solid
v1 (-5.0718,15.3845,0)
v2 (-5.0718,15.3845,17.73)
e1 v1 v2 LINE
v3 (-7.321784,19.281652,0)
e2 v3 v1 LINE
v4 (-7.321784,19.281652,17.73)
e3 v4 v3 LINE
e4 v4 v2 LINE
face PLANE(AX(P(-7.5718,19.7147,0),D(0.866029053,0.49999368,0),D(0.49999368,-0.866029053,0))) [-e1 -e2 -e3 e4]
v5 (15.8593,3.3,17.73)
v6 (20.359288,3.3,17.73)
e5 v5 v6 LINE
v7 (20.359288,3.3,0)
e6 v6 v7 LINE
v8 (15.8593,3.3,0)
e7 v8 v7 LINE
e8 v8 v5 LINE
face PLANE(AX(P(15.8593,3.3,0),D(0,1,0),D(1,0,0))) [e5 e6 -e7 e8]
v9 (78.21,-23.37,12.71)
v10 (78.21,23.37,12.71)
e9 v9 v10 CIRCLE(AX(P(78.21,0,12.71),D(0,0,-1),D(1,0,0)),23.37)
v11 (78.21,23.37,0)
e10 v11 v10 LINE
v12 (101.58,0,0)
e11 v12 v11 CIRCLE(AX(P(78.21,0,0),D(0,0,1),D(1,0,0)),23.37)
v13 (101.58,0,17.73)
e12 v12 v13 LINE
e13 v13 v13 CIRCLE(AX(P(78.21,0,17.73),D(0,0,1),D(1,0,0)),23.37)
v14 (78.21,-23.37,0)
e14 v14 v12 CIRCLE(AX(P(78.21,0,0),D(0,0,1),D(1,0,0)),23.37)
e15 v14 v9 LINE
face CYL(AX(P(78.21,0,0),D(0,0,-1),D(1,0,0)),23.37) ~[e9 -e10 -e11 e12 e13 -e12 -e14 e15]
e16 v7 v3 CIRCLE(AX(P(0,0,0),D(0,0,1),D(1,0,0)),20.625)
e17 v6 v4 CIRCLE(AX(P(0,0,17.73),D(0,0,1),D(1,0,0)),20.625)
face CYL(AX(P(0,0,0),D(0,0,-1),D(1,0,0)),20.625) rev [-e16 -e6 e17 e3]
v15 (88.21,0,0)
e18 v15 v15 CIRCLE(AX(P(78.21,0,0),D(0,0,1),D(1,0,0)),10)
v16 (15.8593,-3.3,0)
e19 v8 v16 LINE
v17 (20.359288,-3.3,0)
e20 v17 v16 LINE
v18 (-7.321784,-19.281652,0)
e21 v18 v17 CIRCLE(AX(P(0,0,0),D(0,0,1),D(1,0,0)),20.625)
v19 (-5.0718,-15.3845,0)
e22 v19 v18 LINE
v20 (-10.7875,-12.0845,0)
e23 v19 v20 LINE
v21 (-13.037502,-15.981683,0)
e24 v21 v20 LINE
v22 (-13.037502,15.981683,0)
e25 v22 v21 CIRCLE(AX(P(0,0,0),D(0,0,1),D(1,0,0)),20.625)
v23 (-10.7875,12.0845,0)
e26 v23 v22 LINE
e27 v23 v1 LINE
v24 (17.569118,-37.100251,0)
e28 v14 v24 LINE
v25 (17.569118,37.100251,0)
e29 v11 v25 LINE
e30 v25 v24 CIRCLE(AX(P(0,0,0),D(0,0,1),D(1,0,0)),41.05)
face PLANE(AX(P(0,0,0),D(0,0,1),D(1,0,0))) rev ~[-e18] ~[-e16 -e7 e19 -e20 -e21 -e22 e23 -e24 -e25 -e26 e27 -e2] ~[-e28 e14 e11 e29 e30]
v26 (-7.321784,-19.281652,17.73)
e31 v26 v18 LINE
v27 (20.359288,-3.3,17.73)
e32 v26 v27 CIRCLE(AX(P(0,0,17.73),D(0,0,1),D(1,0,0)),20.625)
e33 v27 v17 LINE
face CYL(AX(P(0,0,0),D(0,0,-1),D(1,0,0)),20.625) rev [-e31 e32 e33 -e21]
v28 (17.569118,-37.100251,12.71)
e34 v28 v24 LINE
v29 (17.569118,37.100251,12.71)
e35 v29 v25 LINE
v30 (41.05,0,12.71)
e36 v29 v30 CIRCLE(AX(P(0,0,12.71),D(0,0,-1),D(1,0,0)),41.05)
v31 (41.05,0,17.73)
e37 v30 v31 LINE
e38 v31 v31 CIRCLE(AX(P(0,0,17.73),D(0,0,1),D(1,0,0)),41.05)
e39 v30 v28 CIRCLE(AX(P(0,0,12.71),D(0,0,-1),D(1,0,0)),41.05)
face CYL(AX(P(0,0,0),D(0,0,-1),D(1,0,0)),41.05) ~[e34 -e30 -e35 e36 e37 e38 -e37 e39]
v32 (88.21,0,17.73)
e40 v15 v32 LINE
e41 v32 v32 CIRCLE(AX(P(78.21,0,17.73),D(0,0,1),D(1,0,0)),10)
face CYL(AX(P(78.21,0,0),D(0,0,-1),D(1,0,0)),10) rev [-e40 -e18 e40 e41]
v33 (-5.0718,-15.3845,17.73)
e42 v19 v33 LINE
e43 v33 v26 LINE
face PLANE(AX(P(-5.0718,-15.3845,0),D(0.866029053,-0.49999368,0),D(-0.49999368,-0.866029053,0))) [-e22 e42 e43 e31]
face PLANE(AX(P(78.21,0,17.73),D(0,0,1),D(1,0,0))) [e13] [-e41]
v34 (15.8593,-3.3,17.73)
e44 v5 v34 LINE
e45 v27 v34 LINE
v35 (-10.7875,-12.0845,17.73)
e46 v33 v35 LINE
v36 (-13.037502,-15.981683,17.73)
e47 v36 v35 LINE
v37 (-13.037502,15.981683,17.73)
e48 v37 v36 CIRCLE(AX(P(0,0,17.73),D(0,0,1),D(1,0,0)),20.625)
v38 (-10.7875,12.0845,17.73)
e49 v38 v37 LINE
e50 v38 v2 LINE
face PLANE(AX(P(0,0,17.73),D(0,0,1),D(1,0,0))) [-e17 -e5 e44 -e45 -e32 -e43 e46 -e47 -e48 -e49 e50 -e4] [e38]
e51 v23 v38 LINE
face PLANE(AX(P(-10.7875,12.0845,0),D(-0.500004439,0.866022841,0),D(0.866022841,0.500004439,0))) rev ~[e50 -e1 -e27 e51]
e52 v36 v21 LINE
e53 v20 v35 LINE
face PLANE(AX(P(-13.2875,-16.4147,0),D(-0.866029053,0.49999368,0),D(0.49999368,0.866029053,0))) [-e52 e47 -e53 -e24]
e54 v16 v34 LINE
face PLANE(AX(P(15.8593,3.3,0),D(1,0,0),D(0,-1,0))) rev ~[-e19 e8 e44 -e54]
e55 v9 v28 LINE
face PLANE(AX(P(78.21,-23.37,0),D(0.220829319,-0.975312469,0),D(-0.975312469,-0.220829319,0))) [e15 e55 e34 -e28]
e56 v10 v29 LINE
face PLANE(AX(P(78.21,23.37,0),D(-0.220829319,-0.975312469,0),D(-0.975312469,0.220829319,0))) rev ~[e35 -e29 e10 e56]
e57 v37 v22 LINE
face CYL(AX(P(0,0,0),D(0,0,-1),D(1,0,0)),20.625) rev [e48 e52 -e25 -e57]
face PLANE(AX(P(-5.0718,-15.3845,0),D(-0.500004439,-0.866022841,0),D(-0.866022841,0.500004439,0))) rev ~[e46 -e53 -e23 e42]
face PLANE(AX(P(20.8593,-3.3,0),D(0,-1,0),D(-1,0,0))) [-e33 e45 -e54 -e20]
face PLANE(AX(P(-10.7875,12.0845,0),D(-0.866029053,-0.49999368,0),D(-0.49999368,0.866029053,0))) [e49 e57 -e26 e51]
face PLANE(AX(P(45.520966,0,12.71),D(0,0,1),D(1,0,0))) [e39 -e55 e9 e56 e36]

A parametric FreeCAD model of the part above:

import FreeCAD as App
import Part
import Sketcher

V = App.Vector
Q = App.Units.Quantity

doc = App.newDocument("Part")
body = doc.addObject("PartDesign::Body", "Body")
body.AllowCompound = True

sketch1 = doc.addObject("Sketcher::SketchObject", "Sketch")
body.addObject(sketch1)
sketch1.AttachmentSupport = (doc.XY_Plane, [""])
sketch1.MapMode = "FlatFace"
sketch1.addGeometry([
    Part.Circle(V(0, 0, 0), V(0, 0, 1), 41),
    Part.Circle(V(0, 0, 0), V(0, 0, 1), 21),
    Part.Circle(V(78, 0, 0), V(0, 0, 1), 23),
    Part.Circle(V(78, 0, 0), V(0, 0, 1), 10),
], False)
sketch1.addConstraint([
    Sketcher.Constraint("Coincident", 0, 3, -1, 1),
    Sketcher.Constraint("Coincident", 1, 3, -1, 1),
    Sketcher.Constraint("Coincident", 3, 3, 2, 3),
    Sketcher.Constraint("PointOnObject", 2, 3, -1),
    Sketcher.Constraint("Diameter", 3, 20.0),
    Sketcher.Constraint("Diameter", 0, 82.1),
    Sketcher.Constraint("Diameter", 1, 41.25),
    Sketcher.Constraint("Diameter", 2, 46.74),
    Sketcher.Constraint("DistanceX", -1, 1, 2, 3, 78.21),
])
pad1 = doc.addObject("PartDesign::Pad", "Pad")
body.addObject(pad1)
pad1.Profile = sketch1
pad1.Length = 17.73

sketch2 = doc.addObject("Sketcher::SketchObject", "Sketch001")
body.addObject(sketch2)
sketch2.AttachmentSupport = (doc.XY_Plane, [""])
sketch2.MapMode = "FlatFace"
sketch2.addGeometry([
    Part.LineSegment(V(78, 23, 0), V(18, 37, 0)),
    Part.LineSegment(V(18, 37, 0), V(30, 0, 0)),
    Part.LineSegment(V(30, 0, 0), V(18, -37, 0)),
    Part.LineSegment(V(18, -37, 0), V(78, -23, 0)),
    Part.LineSegment(V(78, -23, 0), V(57, 0, 0)),
    Part.LineSegment(V(57, 0, 0), V(78, 23, 0)),
], False)
sketch2.addConstraint([
    Sketcher.Constraint("Coincident", 0, 2, 1, 1),
    Sketcher.Constraint("Coincident", 1, 2, 2, 1),
    Sketcher.Constraint("Coincident", 2, 2, 3, 1),
    Sketcher.Constraint("Coincident", 3, 2, 4, 1),
    Sketcher.Constraint("Coincident", 4, 2, 5, 1),
    Sketcher.Constraint("Coincident", 5, 2, 0, 1),
    Sketcher.Constraint("Symmetric", 0, 2, 2, 2, -1),
    Sketcher.Constraint("Symmetric", 3, 2, 5, 2, -1),
    Sketcher.Constraint("PointOnObject", 1, 2, -1),
    Sketcher.Constraint("PointOnObject", 4, 2, -1),
    Sketcher.Constraint("DistanceX", -1, 1, 4, 2, 57.0),
    Sketcher.Constraint("Angle", 1, Q("-70.7888 deg")),
    Sketcher.Constraint("DistanceX", -1, 1, 3, 2, 78.21),
    Sketcher.Constraint("DistanceY", 3, 2, -1, 1, 23.37),
    Sketcher.Constraint("Distance", 0, 62.176),
    Sketcher.Constraint("DistanceX", -1, 1, 0, 2, 17.569),
])
pad2 = doc.addObject("PartDesign::Pad", "Pad001")
body.addObject(pad2)
pad2.Profile = sketch2
pad2.Length = 12.71

sketch3 = doc.addObject("Sketcher::SketchObject", "Sketch002")
body.addObject(sketch3)
sketch3.AttachmentSupport = (doc.XY_Plane, [""])
sketch3.MapMode = "FlatFace"
sketch3.addGeometry([
    Part.LineSegment(V(-13, 16, 0), V(-11, 12, 0)),
    Part.LineSegment(V(-11, 12, 0), V(-5, 15, 0)),
    Part.LineSegment(V(-5, 15, 0), V(-8, 20, 0)),
    Part.LineSegment(V(-8, 20, 0), V(-13, 16, 0)),
    Part.LineSegment(V(-8, -20, 0), V(-5, -15, 0)),
    Part.LineSegment(V(-5, -15, 0), V(-11, -12, 0)),
    Part.LineSegment(V(-11, -12, 0), V(-13, -16, 0)),
    Part.LineSegment(V(-13, -16, 0), V(-8, -20, 0)),
    Part.LineSegment(V(16, -3, 0), V(21, -3, 0)),
    Part.LineSegment(V(21, -3, 0), V(21, 3, 0)),
    Part.LineSegment(V(21, 3, 0), V(16, 3, 0)),
    Part.LineSegment(V(16, 3, 0), V(16, -3, 0)),
], False)
sketch3.addConstraint([
    Sketcher.Constraint("Coincident", 0, 2, 1, 1),
    Sketcher.Constraint("Coincident", 1, 2, 2, 1),
    Sketcher.Constraint("Coincident", 2, 2, 3, 1),
    Sketcher.Constraint("Coincident", 3, 2, 0, 1),
    Sketcher.Constraint("Coincident", 4, 2, 5, 1),
    Sketcher.Constraint("Coincident", 5, 2, 6, 1),
    Sketcher.Constraint("Coincident", 6, 2, 7, 1),
    Sketcher.Constraint("Coincident", 7, 2, 4, 1),
    Sketcher.Constraint("Coincident", 8, 2, 9, 1),
    Sketcher.Constraint("Coincident", 9, 2, 10, 1),
    Sketcher.Constraint("Coincident", 10, 2, 11, 1),
    Sketcher.Constraint("Coincident", 11, 2, 8, 1),
    Sketcher.Constraint("Horizontal", 8),
    Sketcher.Constraint("Vertical", 9),
    Sketcher.Constraint("Horizontal", 10),
    Sketcher.Constraint("Vertical", 11),
    Sketcher.Constraint("Symmetric", 1, 2, 4, 2, -1),
    Sketcher.Constraint("Symmetric", 0, 2, 5, 2, -1),
    Sketcher.Constraint("Symmetric", 3, 2, 6, 2, -1),
    Sketcher.Constraint("Symmetric", 2, 2, 7, 2, -1),
    Sketcher.Constraint("Perpendicular", 0, 1),
    Sketcher.Constraint("Perpendicular", 1, 2),
    Sketcher.Constraint("Perpendicular", 2, 3),
    Sketcher.Constraint("DistanceX", 8, 1, 8, 2, 5.0),
    Sketcher.Constraint("Angle", 0, Q("-60.0004 deg")),
    Sketcher.Constraint("Distance", 0, 5.0),
    Sketcher.Constraint("DistanceY", 9, 1, 9, 2, 6.6),
    Sketcher.Constraint("Distance", 1, 6.6),
    Sketcher.Constraint("DistanceY", 8, 2, -1, 1, 3.3),
    Sketcher.Constraint("DistanceY", 4, 2, 0, 2, 27.469),
    Sketcher.Constraint("DistanceX", 4, 2, 8, 2, 25.931),
    Sketcher.Constraint("DistanceX", 0, 2, -1, 1, 10.7875),
])
pad3 = doc.addObject("PartDesign::Pad", "Pad002")
body.addObject(pad3)
pad3.Profile = sketch3
pad3.Length = 17.73

doc.recompute()
